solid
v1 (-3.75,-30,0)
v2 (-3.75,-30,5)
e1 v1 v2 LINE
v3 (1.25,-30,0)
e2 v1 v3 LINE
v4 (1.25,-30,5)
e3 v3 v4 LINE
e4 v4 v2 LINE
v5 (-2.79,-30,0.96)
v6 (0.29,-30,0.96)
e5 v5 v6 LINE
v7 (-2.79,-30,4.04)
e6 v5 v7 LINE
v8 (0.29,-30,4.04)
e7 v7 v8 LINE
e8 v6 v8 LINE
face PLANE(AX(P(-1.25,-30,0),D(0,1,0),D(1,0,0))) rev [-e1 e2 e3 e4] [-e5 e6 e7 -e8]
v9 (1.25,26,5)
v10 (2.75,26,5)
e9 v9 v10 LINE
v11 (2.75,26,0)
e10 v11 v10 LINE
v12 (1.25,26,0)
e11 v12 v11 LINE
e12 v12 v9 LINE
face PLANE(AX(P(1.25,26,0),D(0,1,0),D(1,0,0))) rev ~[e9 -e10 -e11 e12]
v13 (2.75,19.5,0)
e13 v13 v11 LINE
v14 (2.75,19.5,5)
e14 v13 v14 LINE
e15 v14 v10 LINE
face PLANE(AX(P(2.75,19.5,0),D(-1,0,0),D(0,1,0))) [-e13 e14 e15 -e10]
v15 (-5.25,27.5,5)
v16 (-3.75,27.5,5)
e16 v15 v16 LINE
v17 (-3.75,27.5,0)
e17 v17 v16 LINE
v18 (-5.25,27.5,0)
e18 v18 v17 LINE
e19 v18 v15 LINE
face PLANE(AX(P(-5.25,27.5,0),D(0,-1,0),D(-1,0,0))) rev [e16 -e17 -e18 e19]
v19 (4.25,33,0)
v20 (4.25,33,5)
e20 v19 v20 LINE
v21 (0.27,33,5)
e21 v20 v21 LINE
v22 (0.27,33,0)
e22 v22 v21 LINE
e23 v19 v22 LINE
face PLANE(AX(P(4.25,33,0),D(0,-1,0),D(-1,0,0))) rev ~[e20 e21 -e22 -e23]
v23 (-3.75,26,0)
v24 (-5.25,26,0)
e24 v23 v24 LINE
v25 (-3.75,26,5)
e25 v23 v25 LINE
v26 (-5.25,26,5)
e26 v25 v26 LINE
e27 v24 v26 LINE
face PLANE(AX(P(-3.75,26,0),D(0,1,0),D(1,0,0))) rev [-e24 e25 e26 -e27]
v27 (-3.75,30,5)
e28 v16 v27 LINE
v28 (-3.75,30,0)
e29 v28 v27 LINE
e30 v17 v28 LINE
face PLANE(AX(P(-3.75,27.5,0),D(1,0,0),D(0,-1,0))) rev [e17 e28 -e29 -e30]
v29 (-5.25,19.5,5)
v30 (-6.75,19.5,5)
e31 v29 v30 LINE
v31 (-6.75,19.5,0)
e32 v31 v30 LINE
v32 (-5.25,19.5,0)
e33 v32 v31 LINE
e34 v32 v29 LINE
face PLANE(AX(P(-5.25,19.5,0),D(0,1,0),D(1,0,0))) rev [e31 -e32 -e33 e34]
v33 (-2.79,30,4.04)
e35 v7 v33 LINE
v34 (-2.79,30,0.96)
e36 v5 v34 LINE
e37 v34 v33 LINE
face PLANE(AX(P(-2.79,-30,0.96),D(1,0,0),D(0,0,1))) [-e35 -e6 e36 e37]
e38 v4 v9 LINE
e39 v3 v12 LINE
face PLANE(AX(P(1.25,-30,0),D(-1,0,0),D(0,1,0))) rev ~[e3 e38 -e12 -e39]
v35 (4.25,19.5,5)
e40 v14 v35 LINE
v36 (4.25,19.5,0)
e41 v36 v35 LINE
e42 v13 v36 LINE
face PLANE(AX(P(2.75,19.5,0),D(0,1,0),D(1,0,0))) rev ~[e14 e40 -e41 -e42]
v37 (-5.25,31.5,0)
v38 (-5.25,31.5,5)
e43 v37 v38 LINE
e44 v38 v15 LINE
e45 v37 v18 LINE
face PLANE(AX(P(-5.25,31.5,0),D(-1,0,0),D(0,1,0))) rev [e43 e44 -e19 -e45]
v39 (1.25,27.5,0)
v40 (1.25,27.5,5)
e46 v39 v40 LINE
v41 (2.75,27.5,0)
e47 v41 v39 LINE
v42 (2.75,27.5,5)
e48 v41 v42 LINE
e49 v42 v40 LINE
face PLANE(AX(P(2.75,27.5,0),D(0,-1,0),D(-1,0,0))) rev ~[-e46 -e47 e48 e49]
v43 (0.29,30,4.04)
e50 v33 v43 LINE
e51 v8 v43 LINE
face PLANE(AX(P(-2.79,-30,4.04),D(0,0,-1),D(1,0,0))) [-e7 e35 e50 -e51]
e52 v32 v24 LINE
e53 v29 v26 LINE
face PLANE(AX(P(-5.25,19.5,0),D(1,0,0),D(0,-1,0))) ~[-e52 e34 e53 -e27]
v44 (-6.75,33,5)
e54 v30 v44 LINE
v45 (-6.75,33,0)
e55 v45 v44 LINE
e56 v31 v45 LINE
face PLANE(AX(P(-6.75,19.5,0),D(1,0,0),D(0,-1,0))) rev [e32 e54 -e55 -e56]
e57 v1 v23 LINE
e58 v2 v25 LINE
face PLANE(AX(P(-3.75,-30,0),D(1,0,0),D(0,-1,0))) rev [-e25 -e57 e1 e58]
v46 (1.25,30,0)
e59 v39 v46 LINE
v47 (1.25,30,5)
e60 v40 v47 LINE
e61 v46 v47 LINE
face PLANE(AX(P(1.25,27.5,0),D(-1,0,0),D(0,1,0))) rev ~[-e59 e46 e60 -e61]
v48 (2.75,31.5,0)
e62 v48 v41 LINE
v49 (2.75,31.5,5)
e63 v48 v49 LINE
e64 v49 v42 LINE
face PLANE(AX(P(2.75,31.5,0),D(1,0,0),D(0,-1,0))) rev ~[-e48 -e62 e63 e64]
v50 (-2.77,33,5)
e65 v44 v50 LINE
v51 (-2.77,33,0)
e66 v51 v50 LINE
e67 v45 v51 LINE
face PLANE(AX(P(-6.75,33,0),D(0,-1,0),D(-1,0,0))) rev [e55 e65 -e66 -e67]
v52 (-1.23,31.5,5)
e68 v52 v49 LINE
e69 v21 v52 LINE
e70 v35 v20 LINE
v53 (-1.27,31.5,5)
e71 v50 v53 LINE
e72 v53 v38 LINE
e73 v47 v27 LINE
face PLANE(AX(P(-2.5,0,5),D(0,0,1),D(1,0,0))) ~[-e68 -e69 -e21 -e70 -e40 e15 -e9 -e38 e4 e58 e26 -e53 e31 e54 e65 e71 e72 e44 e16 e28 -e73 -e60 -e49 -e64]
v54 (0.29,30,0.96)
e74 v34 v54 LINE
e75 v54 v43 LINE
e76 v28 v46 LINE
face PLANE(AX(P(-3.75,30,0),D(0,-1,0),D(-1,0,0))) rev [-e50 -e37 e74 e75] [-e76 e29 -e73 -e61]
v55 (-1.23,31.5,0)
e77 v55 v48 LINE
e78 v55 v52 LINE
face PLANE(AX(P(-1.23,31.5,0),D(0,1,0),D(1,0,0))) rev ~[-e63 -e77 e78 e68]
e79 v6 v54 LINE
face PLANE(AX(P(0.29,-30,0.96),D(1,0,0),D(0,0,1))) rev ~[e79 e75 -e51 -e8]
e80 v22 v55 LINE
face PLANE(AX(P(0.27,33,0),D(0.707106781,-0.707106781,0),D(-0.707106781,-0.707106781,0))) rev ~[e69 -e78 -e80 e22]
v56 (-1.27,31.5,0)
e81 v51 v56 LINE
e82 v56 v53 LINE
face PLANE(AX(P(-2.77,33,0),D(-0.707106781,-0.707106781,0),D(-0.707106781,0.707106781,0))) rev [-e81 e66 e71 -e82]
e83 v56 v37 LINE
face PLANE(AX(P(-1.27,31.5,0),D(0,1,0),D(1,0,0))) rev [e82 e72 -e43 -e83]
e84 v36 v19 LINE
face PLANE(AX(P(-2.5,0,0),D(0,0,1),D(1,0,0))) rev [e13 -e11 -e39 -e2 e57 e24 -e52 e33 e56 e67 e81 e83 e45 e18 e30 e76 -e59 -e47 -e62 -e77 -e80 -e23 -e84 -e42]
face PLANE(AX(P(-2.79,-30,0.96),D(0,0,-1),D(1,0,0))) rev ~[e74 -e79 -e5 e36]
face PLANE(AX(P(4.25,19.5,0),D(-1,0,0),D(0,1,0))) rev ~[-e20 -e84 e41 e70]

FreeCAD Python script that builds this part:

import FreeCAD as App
import Part
import Sketcher

V = App.Vector
Q = App.Units.Quantity


def add_polygon(sketch, points):
    """Adds a closed chain of lines whose ends are joined by coincident constraints."""
    first, n = sketch.GeometryCount, len(points)
    for a, b in zip(points, points[1:] + points[:1]):
        sketch.addGeometry(Part.LineSegment(App.Vector(*a, 0), App.Vector(*b, 0)), False)
    for i in range(n):
        sketch.addConstraint(Sketcher.Constraint("Coincident", first + i, 2, first + (i + 1) % n, 1))

doc = App.newDocument("Part")
params = doc.addObject("Spreadsheet::Sheet", "Params")
for row, (alias, value) in enumerate([
    ("sketch1_height", "56 mm"),
    ("sketch1_height2", "4 mm"),
    ("sketch1_height3", "60 mm"),
    ("sketch1_width", "2.5 mm"),
    ("sketch1_width2", "1.5 mm"),
    ("pad1_length", "5 mm"),
    ("sketch2_width", "3.08 mm"),
    ("pocket1_length", "60 mm"),
], start=1):
    params.set(f"A{row}", alias)
    params.set(f"B{row}", "=" + value)
    params.setAlias(f"B{row}", alias)

body = doc.addObject("PartDesign::Body", "Body")

# Sketch on XY plane
sketch1 = body.newObject("Sketcher::SketchObject", "Sketch")
sketch1.AttachmentSupport = (doc.getObject("XY_Plane"), [""])
sketch1.MapMode = "FlatFace"
add_polygon(sketch1, [(-1.2, -30), (1.2, -30), (1.2, 26), (2.8, 26), (2.8, 19.5), (4.2, 19.5), (4.2, 33), (0.3, 33), (-1.2, 31.5), (2.8, 31.5), (2.8, 27.5), (1.2, 27.5), (1.2, 30), (-1.2, 30)])  # lines 0-13
sketch1.addConstraint([
    Sketcher.Constraint("Horizontal", 0),
    Sketcher.Constraint("Vertical", 1),
    Sketcher.Constraint("Horizontal", 2),
    Sketcher.Constraint("Vertical", 3),
    Sketcher.Constraint("Horizontal", 4),
    Sketcher.Constraint("Vertical", 5),
    Sketcher.Constraint("Horizontal", 6),
    Sketcher.Constraint("Horizontal", 8),
    Sketcher.Constraint("Vertical", 9),
    Sketcher.Constraint("Horizontal", 10),
    Sketcher.Constraint("Vertical", 11),
    Sketcher.Constraint("Horizontal", 12),
    Sketcher.Constraint("Vertical", 13),
    Sketcher.Constraint("Symmetric", 0, 2, 12, 2, -1, 1),
    Sketcher.Constraint("Vertical", 3, 2, 8, 2),
    Sketcher.Constraint("Vertical", 1, 2, 10, 2),
    Sketcher.Constraint("Equal", 2, 4),
    Sketcher.Constraint("Equal", 6, 8),
    Sketcher.Constraint("Equal", 12, 11),
    Sketcher.Constraint("DistanceY", 1, 1, 1, 2, 56.0),
    Sketcher.Constraint("DistanceY", 9, 2, 9, 1, 4.0),
    Sketcher.Constraint("DistanceY", 13, 2, 13, 1, 60.0),
    Sketcher.Constraint("Angle", 7, Q("-135 deg")),
    Sketcher.Constraint("DistanceX", 0, 1, 0, 2, 2.5),
    Sketcher.Constraint("DistanceX", 2, 1, 2, 2, 1.5),
    Sketcher.Constraint("DistanceY", 3, 2, 3, 1, 6.5),
    Sketcher.Constraint("DistanceX", 6, 2, 6, 1, 3.98),
])
sketch1.setExpression("Constraints[33]", "Params.sketch1_height")
sketch1.setExpression("Constraints[34]", "Params.sketch1_height2")
sketch1.setExpression("Constraints[35]", "Params.sketch1_height3")
sketch1.setExpression("Constraints[37]", "Params.sketch1_width")
sketch1.setExpression("Constraints[38]", "Params.sketch1_width2")
pad1 = body.newObject("PartDesign::Pad", "Pad")
pad1.Profile = sketch1
pad1.setExpression("Length", "Params.pad1_length")
body2 = doc.addObject("PartDesign::Body", "Body001")
doc.recompute()

body2.BaseFeature = body
doc.recompute()

mirroring = doc.addObject("Part::Mirroring", "Mirroring")
mirroring.Source = body
mirroring.Base = V(-1.25, 0, 2.5)
mirroring.Normal = V(-1, 0, 0)
body3 = doc.addObject("PartDesign::Body", "Body002")
body3.BaseFeature = mirroring
boolean = body2.newObject("PartDesign::Boolean", "Boolean")
boolean.Type = "Fuse"
boolean.addObjects([body3])
doc.recompute()

# Sketch on XZ plane
sketch2 = body2.newObject("Sketcher::SketchObject", "Sketch001")
sketch2.AttachmentSupport = (doc.getObject("XZ_Plane001"), [""])
sketch2.MapMode = "FlatFace"
sketch2.AttachmentOffset = App.Placement(V(0, 0, 30), App.Rotation())
add_polygon(sketch2, [(-2.8, 4), (-2.8, 1), (0.3, 1), (0.3, 4)])  # lines 0-3
sketch2.addConstraint([
    Sketcher.Constraint("Vertical", 0),
    Sketcher.Constraint("Horizontal", 1),
    Sketcher.Constraint("Vertical", 2),
    Sketcher.Constraint("Horizontal", 3),
    Sketcher.Constraint("Equal", 3, 0),
    Sketcher.Constraint("DistanceX", 1, 1, 1, 2, 3.08),
    Sketcher.Constraint("DistanceX", 0, 2, -1, 1, 2.79),
    Sketcher.Constraint("DistanceY", -1, 1, 0, 2, 0.96),
])
sketch2.setExpression("Constraints[9]", "Params.sketch2_width")
pocket1 = body2.newObject("PartDesign::Pocket", "Pocket")
pocket1.Profile = sketch2
pocket1.setExpression("Length", "Params.pocket1_length")
mirroring.Visibility = False

doc.recompute()
